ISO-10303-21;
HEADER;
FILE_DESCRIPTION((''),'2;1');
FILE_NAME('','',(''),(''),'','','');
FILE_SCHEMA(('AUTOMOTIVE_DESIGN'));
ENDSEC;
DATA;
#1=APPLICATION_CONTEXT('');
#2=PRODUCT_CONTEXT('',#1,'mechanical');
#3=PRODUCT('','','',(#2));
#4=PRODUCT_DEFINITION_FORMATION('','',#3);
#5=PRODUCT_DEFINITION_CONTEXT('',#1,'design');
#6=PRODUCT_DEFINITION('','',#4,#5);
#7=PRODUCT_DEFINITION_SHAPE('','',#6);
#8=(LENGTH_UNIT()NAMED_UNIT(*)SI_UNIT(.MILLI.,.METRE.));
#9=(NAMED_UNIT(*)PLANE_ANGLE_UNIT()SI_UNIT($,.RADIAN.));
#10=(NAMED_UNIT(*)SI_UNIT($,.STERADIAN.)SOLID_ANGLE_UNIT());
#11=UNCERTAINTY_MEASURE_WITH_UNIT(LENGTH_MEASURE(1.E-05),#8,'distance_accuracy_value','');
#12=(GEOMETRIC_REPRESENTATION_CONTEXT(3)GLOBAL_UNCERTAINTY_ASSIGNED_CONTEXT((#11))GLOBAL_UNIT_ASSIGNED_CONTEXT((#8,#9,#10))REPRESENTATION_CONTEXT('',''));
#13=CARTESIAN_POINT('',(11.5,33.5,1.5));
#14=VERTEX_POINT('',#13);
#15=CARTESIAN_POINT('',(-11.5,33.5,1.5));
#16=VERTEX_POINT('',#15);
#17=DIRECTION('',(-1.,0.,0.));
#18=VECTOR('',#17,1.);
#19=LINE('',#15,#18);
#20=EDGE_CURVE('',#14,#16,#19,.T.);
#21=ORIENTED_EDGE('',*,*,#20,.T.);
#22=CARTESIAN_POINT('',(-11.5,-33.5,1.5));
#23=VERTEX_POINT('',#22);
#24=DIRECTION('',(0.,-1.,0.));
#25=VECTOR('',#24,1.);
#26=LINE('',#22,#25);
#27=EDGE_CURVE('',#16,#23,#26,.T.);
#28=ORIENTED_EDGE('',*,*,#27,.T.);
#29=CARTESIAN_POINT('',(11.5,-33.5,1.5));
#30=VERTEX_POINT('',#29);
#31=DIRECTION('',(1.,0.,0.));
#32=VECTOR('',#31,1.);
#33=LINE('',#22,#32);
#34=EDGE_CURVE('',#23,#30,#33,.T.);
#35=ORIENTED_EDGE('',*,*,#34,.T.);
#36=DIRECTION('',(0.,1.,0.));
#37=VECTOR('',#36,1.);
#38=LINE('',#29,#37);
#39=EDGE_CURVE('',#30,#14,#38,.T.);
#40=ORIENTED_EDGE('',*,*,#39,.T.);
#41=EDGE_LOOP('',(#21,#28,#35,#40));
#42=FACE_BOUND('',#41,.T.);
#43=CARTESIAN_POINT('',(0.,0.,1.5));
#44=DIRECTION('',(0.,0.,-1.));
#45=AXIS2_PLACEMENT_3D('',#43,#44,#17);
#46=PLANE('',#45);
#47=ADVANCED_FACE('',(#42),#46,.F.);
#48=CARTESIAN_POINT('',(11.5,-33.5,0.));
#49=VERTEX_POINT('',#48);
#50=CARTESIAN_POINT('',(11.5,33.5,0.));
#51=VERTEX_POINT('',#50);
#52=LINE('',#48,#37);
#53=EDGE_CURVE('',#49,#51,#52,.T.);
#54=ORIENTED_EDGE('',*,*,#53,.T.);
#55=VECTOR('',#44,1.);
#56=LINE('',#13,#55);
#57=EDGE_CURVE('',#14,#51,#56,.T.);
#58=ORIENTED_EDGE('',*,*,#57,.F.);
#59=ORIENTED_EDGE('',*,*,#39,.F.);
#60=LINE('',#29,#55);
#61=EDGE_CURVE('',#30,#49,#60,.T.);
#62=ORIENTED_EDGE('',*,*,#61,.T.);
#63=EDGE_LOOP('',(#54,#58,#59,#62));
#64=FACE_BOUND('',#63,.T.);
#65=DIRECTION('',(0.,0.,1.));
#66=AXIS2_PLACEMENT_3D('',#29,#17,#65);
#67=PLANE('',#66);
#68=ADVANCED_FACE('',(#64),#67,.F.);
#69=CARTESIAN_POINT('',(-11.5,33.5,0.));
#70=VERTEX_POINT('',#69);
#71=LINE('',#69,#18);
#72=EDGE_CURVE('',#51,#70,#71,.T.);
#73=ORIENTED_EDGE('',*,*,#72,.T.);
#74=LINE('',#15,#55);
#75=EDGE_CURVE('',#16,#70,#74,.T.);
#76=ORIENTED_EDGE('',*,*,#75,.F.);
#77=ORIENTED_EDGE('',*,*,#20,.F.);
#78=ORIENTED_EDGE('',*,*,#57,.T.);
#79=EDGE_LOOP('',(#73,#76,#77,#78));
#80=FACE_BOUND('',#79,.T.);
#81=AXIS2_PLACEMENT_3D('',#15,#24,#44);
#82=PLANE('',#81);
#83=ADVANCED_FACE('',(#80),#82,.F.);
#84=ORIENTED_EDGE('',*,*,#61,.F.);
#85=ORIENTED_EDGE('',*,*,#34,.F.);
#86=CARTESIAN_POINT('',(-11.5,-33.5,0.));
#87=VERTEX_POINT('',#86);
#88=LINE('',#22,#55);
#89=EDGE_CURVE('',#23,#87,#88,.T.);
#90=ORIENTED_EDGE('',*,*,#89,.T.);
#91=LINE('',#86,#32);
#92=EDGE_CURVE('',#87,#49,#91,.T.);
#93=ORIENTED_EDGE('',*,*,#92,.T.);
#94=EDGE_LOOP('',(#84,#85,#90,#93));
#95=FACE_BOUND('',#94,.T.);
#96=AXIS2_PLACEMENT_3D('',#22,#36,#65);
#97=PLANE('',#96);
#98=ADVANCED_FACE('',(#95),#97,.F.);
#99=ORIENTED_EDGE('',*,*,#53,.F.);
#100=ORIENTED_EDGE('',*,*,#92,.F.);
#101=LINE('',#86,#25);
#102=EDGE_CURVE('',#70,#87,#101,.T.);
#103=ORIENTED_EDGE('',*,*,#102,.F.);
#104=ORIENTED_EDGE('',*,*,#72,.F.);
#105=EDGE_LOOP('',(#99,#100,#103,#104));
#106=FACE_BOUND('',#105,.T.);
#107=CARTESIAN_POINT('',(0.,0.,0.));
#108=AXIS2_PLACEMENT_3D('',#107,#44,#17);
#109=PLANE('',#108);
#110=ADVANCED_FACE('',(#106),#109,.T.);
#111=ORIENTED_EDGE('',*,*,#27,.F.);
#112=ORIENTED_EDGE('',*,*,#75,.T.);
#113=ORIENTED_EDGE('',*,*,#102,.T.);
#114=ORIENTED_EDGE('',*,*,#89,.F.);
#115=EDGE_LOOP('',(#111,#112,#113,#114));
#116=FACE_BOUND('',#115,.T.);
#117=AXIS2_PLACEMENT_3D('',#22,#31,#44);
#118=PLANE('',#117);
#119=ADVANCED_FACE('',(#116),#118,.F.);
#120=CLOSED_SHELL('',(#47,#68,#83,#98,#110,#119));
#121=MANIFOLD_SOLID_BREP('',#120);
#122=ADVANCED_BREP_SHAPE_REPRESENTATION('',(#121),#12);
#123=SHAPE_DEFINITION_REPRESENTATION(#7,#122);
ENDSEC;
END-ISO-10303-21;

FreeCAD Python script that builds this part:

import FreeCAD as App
import Part
import Sketcher
from FreeCAD import Vector

doc = App.newDocument("Part")
params = doc.addObject("Spreadsheet::Sheet", "Params")
for row, (alias, value) in enumerate([
    ("sketch1_width", "23 mm"),
    ("sketch1_height", "67 mm"),
    ("pad1_length", "1.5 mm"),
], start=1):
    params.set(f"A{row}", alias)
    params.set(f"B{row}", "=" + value)
    params.setAlias(f"B{row}", alias)

body = doc.addObject("PartDesign::Body", "Body")

sketch1 = doc.addObject("Sketcher::SketchObject", "Sketch")
body.addObject(sketch1)
sketch1.AttachmentSupport = (doc.XY_Plane, [""])
sketch1.MapMode = "FlatFace"
sketch1.addGeometry([
    Part.LineSegment(Vector(-12, 34, 0), Vector(-12, -34, 0)),
    Part.LineSegment(Vector(-12, -34, 0), Vector(12, -34, 0)),
    Part.LineSegment(Vector(12, -34, 0), Vector(12, 34, 0)),
    Part.LineSegment(Vector(12, 34, 0), Vector(-12, 34, 0)),
], False)
sketch1.addConstraint([
    Sketcher.Constraint("Coincident", 0, 2, 1, 1),
    Sketcher.Constraint("Coincident", 1, 2, 2, 1),
    Sketcher.Constraint("Coincident", 2, 2, 3, 1),
    Sketcher.Constraint("Coincident", 3, 2, 0, 1),
    Sketcher.Constraint("Vertical", 0),
    Sketcher.Constraint("Horizontal", 1),
    Sketcher.Constraint("Vertical", 2),
    Sketcher.Constraint("Horizontal", 3),
    Sketcher.Constraint("Symmetric", 0, 2, 2, 2, -1, 1),
    Sketcher.Constraint("DistanceX", 1, 1, 1, 2, 23.0),
    Sketcher.Constraint("DistanceY", 0, 2, 0, 1, 67.0),
])
sketch1.setExpression("Constraints[9]", "Params.sketch1_width")
sketch1.setExpression("Constraints[10]", "Params.sketch1_height")
pad1 = doc.addObject("PartDesign::Pad", "Pad")
body.addObject(pad1)
pad1.Profile = sketch1
pad1.setExpression("Length", "Params.pad1_length")

doc.recompute()
